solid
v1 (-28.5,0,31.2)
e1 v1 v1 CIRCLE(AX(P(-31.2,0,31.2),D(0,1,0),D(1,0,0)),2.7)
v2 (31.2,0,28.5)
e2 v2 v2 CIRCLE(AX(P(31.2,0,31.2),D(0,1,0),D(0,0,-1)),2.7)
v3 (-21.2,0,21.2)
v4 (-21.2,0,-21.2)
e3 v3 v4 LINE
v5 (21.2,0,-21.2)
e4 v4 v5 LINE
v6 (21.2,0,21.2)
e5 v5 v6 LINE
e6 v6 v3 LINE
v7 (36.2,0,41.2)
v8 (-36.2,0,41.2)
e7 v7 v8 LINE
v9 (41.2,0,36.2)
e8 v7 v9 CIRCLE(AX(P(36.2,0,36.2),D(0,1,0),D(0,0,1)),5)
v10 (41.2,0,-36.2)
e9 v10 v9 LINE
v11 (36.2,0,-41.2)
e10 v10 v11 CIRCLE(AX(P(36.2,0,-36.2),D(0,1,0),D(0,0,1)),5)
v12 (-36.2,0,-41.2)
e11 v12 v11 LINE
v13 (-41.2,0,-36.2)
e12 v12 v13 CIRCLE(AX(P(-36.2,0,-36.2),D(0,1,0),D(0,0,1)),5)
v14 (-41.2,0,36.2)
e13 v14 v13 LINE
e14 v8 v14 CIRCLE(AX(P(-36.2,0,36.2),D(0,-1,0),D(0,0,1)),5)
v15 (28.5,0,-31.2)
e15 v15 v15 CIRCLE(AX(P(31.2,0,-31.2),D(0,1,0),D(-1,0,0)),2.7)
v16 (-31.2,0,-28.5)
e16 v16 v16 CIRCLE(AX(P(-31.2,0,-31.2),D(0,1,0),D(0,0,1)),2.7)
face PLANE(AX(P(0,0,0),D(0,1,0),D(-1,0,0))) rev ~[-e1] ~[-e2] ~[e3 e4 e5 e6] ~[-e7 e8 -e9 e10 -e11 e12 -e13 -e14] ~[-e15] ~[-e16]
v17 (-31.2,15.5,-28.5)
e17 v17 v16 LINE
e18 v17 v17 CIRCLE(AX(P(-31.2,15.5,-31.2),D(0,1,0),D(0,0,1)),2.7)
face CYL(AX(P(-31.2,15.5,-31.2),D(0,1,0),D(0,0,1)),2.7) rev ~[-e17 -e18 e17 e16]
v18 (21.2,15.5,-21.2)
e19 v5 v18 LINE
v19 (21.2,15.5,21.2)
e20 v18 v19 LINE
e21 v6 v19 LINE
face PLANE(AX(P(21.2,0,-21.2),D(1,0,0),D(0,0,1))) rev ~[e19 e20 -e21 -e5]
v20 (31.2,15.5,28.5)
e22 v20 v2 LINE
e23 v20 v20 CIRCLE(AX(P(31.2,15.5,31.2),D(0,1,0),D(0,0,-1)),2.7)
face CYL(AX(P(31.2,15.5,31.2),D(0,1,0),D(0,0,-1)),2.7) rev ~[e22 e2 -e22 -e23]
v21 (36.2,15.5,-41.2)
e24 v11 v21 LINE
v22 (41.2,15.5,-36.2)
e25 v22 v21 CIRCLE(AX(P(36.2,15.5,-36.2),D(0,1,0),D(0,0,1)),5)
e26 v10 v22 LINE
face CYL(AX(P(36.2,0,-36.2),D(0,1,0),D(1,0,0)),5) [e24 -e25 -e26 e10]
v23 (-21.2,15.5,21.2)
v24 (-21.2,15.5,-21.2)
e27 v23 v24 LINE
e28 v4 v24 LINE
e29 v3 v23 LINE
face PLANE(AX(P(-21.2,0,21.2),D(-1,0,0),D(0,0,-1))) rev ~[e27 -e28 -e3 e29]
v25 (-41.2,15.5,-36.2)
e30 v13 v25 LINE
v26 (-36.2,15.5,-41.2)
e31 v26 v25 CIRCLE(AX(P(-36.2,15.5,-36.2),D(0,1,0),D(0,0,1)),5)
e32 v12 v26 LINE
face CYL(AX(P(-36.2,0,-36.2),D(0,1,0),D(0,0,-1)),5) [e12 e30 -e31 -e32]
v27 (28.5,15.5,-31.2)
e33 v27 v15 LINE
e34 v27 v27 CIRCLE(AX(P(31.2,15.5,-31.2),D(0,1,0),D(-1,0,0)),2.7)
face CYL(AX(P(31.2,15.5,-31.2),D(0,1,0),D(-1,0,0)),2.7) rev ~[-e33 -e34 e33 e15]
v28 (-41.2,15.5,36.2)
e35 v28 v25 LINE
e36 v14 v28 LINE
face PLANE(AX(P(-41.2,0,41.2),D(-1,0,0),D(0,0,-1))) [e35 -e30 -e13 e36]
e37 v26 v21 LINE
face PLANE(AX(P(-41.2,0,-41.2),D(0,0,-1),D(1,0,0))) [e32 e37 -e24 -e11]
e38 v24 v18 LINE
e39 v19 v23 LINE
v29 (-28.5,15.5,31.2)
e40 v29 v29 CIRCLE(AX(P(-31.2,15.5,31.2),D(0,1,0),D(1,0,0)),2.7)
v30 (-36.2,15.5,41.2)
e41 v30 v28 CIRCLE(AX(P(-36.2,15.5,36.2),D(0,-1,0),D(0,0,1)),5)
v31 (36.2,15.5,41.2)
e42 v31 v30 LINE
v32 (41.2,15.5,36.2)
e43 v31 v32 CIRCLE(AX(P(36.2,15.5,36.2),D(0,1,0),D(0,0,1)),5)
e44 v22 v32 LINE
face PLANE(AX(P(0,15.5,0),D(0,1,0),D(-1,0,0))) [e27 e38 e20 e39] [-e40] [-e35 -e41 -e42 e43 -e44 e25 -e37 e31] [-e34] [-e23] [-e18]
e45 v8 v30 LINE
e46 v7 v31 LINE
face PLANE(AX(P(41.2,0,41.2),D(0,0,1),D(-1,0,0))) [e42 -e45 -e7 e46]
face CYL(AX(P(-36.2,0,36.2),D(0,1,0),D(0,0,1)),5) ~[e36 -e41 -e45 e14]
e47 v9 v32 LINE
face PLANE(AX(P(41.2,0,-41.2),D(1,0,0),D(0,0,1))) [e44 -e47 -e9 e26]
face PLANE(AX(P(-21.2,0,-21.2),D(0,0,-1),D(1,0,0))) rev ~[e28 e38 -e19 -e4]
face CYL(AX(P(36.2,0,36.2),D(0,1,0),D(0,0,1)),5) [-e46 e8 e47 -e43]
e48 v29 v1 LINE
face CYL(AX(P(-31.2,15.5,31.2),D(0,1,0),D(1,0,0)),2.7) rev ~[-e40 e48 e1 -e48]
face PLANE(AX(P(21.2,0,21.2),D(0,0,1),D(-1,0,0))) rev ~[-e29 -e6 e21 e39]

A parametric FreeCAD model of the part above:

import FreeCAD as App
import Part
import Sketcher
from FreeCAD import Vector
Q = App.Units.Quantity


def edges_at(feature, points):
    """Names of the edges that pass closest to the given points."""
    edges = feature.Shape.Edges
    near = lambda p: min(range(len(edges)), key=lambda i: edges[i].distToShape(Part.Vertex(*p))[0])
    return sorted({f"Edge{near(p) + 1}" for p in points})


def add_polygon(sketch, points):
    """Adds a closed chain of lines whose ends are joined by coincident constraints."""
    first, n = sketch.GeometryCount, len(points)
    for a, b in zip(points, points[1:] + points[:1]):
        sketch.addGeometry(Part.LineSegment(App.Vector(*a, 0), App.Vector(*b, 0)), False)
    for i in range(n):
        sketch.addConstraint(Sketcher.Constraint("Coincident", first + i, 2, first + (i + 1) % n, 1))

doc = App.newDocument("Part")
body = doc.addObject("PartDesign::Body", "Body")

# Sketch on XZ plane
sketch1 = body.newObject("Sketcher::SketchObject", "Sketch")
sketch1.AttachmentSupport = (doc.getObject("XZ_Plane"), [""])
sketch1.MapMode = "FlatFace"
add_polygon(sketch1, [(-41, 41), (41, 41), (41, -41), (-41, -41)])  # lines 0-3
add_polygon(sketch1, [(21, -21), (21, 21), (-21, 21), (-21, -21)])  # lines 4-7
sketch1.addConstraint(Sketcher.Constraint("Horizontal", 0))
sketch1.addConstraint(Sketcher.Constraint("Vertical", 1))
sketch1.addConstraint(Sketcher.Constraint("Horizontal", 2))
sketch1.addConstraint(Sketcher.Constraint("Vertical", 3))
sketch1.addConstraint(Sketcher.Constraint("Vertical", 4))
sketch1.addConstraint(Sketcher.Constraint("Horizontal", 5))
sketch1.addConstraint(Sketcher.Constraint("Vertical", 6))
sketch1.addConstraint(Sketcher.Constraint("Horizontal", 7))
sketch1.addConstraint(Sketcher.Constraint("Symmetric", 0, 2, 2, 2, -1, 1))
sketch1.addConstraint(Sketcher.Constraint("Symmetric", 4, 2, 6, 2, -1, 1))
sketch1.addConstraint(Sketcher.Constraint("Equal", 2, 1))
sketch1.addConstraint(Sketcher.Constraint("Equal", 7, 4))
sketch1.addConstraint(Sketcher.Constraint("DistanceX", 0, 1, 0, 2, Q("82.4 mm")))
sketch1.addConstraint(Sketcher.Constraint("DistanceX", 5, 2, 5, 1, Q("42.4 mm")))
pad1 = body.newObject("PartDesign::Pad", "Pad")
pad1.Profile = sketch1
pad1.Length = 15.5
pad1.Reversed = True

# Sketch on XZ plane
sketch2 = body.newObject("Sketcher::SketchObject", "Sketch001")
sketch2.AttachmentSupport = (doc.getObject("XZ_Plane"), [""])
sketch2.MapMode = "FlatFace"
sketch2.AttachmentOffset = App.Placement(Vector(0, 0, -15.5), App.Rotation())
sketch2.addGeometry(Part.Circle(Vector(-31.2, 31.2, 0), Vector(0, 0, 1), 2.7), False)
sketch2.addConstraint(Sketcher.Constraint("Diameter", 0, Q("5.4 mm")))
sketch2.addConstraint(Sketcher.Constraint("DistanceX", 0, 3, -1, 1, Q("31.2 mm")))
sketch2.addConstraint(Sketcher.Constraint("DistanceY", -1, 1, 0, 3, Q("31.2 mm")))
pocket1 = body.newObject("PartDesign::Pocket", "Pocket")
pocket1.Profile = sketch2
pocket1.Type = "ThroughAll"
pocket1.Reversed = True
doc.recompute()

fillet = body.newObject("PartDesign::Fillet", "Fillet")
fillet.Base = (pocket1, edges_at(pocket1, [(-41.2, 7.75, 41.2)]))
fillet.Radius = 5
doc.recompute()

polarpattern = body.newObject("PartDesign::PolarPattern", "PolarPattern")
polarpattern.Originals = [pocket1, fillet]
polarpattern.Axis = (doc.getObject("Y_Axis"), [""])
polarpattern.Angle = 360
polarpattern.Occurrences = 4
body.Tip = polarpattern

doc.recompute()
